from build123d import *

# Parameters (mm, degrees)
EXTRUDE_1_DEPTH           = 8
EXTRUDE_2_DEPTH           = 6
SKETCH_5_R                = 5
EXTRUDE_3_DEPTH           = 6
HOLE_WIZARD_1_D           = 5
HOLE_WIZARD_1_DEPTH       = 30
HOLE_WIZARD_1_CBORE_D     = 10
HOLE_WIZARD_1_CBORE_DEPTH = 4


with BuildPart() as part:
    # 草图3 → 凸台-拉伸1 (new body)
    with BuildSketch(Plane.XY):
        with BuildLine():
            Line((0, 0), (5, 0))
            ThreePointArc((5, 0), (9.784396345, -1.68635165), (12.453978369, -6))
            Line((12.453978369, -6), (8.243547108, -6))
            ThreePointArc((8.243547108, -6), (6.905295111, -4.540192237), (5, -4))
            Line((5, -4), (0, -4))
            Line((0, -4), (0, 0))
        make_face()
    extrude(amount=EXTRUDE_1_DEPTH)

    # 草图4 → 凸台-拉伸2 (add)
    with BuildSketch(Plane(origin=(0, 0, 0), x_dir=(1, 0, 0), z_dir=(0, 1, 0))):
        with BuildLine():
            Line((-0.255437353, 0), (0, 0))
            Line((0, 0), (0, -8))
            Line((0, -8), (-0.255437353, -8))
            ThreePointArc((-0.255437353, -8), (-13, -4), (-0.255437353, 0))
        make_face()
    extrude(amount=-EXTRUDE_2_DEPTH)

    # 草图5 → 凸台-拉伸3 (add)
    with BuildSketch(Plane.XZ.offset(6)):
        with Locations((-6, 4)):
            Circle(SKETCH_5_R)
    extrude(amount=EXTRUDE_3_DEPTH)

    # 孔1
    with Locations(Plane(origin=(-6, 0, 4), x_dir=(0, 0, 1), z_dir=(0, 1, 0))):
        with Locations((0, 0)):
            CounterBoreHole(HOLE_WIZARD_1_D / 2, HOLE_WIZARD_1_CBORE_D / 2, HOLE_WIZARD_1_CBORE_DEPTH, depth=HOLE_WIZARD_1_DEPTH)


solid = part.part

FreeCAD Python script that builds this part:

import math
import FreeCAD as App
import Part
import Sketcher
from FreeCAD import Vector

doc = App.newDocument("Part")
body = doc.addObject("PartDesign::Body", "Body")

sketch1 = doc.addObject("Sketcher::SketchObject", "Sketch")
body.addObject(sketch1)
sketch1.AttachmentSupport = (doc.XY_Plane, [""])
sketch1.MapMode = "FlatFace"
sketch1.addGeometry(Part.LineSegment(Vector(5, 0, 0), Vector(0, 0, 0)), False)
sketch1.addGeometry(Part.LineSegment(Vector(0, 0, 0), Vector(0, -4, 0)), False)
sketch1.addGeometry(Part.LineSegment(Vector(0, -4, 0), Vector(5, -4, 0)), False)
sketch1.addGeometry(Part.ArcOfCircle(Part.Circle(Vector(5, -7.630149, 0), Vector(0, 0, 1), 3.630149), math.radians(26.683294), math.radians(90)), False)
sketch1.addGeometry(Part.LineSegment(Vector(8.243547, -6, 0), Vector(12.453978, -6, 0)), False)
sketch1.addGeometry(Part.ArcOfCircle(Part.Circle(Vector(5, -7.630149, 0), Vector(0, 0, 1), 7.630149), math.radians(12.336092), math.radians(90)), False)
sketch1.addConstraint(Sketcher.Constraint("Coincident", 0, 2, 1, 1))
sketch1.addConstraint(Sketcher.Constraint("Coincident", 1, 2, 2, 1))
sketch1.addConstraint(Sketcher.Constraint("Tangent", 2, 2, 3, 2))
sketch1.addConstraint(Sketcher.Constraint("Coincident", 3, 1, 4, 1))
sketch1.addConstraint(Sketcher.Constraint("Coincident", 4, 2, 5, 1))
sketch1.addConstraint(Sketcher.Constraint("Tangent", 5, 2, 0, 1))
sketch1.addConstraint(Sketcher.Constraint("Horizontal", 0))
sketch1.addConstraint(Sketcher.Constraint("Vertical", 1))
sketch1.addConstraint(Sketcher.Constraint("Horizontal", 2))
sketch1.addConstraint(Sketcher.Constraint("Horizontal", 4))
sketch1.addConstraint(Sketcher.Constraint("Coincident", 0, 2, -1, 1))
sketch1.addConstraint(Sketcher.Constraint("Coincident", 5, 3, 3, 3))
sketch1.addConstraint(Sketcher.Constraint("DistanceX", 0, 2, 0, 1, 5.0))
sketch1.addConstraint(Sketcher.Constraint("DistanceY", 1, 2, 1, 1, 4.0))
sketch1.addConstraint(Sketcher.Constraint("DistanceY", 3, 1, -1, 1, 6.0))
sketch1.addConstraint(Sketcher.Constraint("Radius", 3, 3.630149))
pad1 = doc.addObject("PartDesign::Pad", "Pad")
body.addObject(pad1)
pad1.Profile = sketch1
pad1.Length = 8

sketch2 = doc.addObject("Sketcher::SketchObject", "Sketch001")
body.addObject(sketch2)
sketch2.AttachmentSupport = (doc.XZ_Plane, [""])
sketch2.MapMode = "FlatFace"
sketch2.addGeometry(Part.LineSegment(Vector(0, 0, 0), Vector(-0.255437, 0, 0)), False)
sketch2.addGeometry(Part.ArcOfCircle(Part.Circle(Vector(-6, 4, 0), Vector(0, 0, 1), 7), math.radians(34.849905), math.radians(325.150095)), False)
sketch2.addGeometry(Part.LineSegment(Vector(-0.255437, 8, 0), Vector(0, 8, 0)), False)
sketch2.addGeometry(Part.LineSegment(Vector(0, 8, 0), Vector(0, 0, 0)), False)
sketch2.addConstraint(Sketcher.Constraint("Coincident", 0, 2, 1, 2))
sketch2.addConstraint(Sketcher.Constraint("Coincident", 1, 1, 2, 1))
sketch2.addConstraint(Sketcher.Constraint("Coincident", 2, 2, 3, 1))
sketch2.addConstraint(Sketcher.Constraint("Coincident", 3, 2, 0, 1))
sketch2.addConstraint(Sketcher.Constraint("Horizontal", 0))
sketch2.addConstraint(Sketcher.Constraint("Horizontal", 2))
sketch2.addConstraint(Sketcher.Constraint("Vertical", 3))
sketch2.addConstraint(Sketcher.Constraint("Coincident", 3, 2, -1, 1))
sketch2.addConstraint(Sketcher.Constraint("Vertical", 0, 2, 1, 1))
sketch2.addConstraint(Sketcher.Constraint("Radius", 1, 7.0))
sketch2.addConstraint(Sketcher.Constraint("DistanceY", 3, 2, 3, 1, 8.0))
sketch2.addConstraint(Sketcher.Constraint("DistanceX", 1, 3, -1, 1, 6.0))
pad2 = doc.addObject("PartDesign::Pad", "Pad001")
body.addObject(pad2)
pad2.Profile = sketch2
pad2.Length = 6

sketch3 = doc.addObject("Sketcher::SketchObject", "Sketch002")
body.addObject(sketch3)
sketch3.AttachmentSupport = (doc.XZ_Plane, [""])
sketch3.MapMode = "FlatFace"
sketch3.AttachmentOffset = App.Placement(Vector(0, 0, 6), App.Rotation())
sketch3.addGeometry(Part.Circle(Vector(-6, 4, 0), Vector(0, 0, 1), 5), False)
sketch3.addConstraint(Sketcher.Constraint("Diameter", 0, 10.0))
sketch3.addConstraint(Sketcher.Constraint("DistanceX", 0, 3, -1, 1, 6.0))
sketch3.addConstraint(Sketcher.Constraint("DistanceY", -1, 1, 0, 3, 4.0))
pad3 = doc.addObject("PartDesign::Pad", "Pad002")
body.addObject(pad3)
pad3.Profile = sketch3
pad3.Length = 6

sketch4 = doc.addObject("Sketcher::SketchObject", "Sketch003")
body.addObject(sketch4)
sketch4.AttachmentSupport = (doc.XZ_Plane, [""])
sketch4.MapMode = "FlatFace"
sketch4.addGeometry(Part.Circle(Vector(-6, 4, 0), Vector(0, 0, 1), 2.5), False)
sketch4.addConstraint(Sketcher.Constraint("Diameter", 0, 5.0))
sketch4.addConstraint(Sketcher.Constraint("DistanceX", 0, 3, -1, 1, 6.0))
sketch4.addConstraint(Sketcher.Constraint("DistanceY", -1, 1, 0, 3, 4.0))
doc.recompute()
hole = doc.addObject("PartDesign::Hole", "Hole")
body.addObject(hole)
hole.Profile = sketch4
hole.ThreadType = "None"
hole.Diameter = 5
hole.DepthType = "Dimension"
hole.Depth = 30
hole.DrillPoint = "Flat"
hole.HoleCutType = "Counterbore"
hole.HoleCutDiameter = 10
hole.HoleCutDepth = 4
hole.Reversed = True

doc.recompute()
